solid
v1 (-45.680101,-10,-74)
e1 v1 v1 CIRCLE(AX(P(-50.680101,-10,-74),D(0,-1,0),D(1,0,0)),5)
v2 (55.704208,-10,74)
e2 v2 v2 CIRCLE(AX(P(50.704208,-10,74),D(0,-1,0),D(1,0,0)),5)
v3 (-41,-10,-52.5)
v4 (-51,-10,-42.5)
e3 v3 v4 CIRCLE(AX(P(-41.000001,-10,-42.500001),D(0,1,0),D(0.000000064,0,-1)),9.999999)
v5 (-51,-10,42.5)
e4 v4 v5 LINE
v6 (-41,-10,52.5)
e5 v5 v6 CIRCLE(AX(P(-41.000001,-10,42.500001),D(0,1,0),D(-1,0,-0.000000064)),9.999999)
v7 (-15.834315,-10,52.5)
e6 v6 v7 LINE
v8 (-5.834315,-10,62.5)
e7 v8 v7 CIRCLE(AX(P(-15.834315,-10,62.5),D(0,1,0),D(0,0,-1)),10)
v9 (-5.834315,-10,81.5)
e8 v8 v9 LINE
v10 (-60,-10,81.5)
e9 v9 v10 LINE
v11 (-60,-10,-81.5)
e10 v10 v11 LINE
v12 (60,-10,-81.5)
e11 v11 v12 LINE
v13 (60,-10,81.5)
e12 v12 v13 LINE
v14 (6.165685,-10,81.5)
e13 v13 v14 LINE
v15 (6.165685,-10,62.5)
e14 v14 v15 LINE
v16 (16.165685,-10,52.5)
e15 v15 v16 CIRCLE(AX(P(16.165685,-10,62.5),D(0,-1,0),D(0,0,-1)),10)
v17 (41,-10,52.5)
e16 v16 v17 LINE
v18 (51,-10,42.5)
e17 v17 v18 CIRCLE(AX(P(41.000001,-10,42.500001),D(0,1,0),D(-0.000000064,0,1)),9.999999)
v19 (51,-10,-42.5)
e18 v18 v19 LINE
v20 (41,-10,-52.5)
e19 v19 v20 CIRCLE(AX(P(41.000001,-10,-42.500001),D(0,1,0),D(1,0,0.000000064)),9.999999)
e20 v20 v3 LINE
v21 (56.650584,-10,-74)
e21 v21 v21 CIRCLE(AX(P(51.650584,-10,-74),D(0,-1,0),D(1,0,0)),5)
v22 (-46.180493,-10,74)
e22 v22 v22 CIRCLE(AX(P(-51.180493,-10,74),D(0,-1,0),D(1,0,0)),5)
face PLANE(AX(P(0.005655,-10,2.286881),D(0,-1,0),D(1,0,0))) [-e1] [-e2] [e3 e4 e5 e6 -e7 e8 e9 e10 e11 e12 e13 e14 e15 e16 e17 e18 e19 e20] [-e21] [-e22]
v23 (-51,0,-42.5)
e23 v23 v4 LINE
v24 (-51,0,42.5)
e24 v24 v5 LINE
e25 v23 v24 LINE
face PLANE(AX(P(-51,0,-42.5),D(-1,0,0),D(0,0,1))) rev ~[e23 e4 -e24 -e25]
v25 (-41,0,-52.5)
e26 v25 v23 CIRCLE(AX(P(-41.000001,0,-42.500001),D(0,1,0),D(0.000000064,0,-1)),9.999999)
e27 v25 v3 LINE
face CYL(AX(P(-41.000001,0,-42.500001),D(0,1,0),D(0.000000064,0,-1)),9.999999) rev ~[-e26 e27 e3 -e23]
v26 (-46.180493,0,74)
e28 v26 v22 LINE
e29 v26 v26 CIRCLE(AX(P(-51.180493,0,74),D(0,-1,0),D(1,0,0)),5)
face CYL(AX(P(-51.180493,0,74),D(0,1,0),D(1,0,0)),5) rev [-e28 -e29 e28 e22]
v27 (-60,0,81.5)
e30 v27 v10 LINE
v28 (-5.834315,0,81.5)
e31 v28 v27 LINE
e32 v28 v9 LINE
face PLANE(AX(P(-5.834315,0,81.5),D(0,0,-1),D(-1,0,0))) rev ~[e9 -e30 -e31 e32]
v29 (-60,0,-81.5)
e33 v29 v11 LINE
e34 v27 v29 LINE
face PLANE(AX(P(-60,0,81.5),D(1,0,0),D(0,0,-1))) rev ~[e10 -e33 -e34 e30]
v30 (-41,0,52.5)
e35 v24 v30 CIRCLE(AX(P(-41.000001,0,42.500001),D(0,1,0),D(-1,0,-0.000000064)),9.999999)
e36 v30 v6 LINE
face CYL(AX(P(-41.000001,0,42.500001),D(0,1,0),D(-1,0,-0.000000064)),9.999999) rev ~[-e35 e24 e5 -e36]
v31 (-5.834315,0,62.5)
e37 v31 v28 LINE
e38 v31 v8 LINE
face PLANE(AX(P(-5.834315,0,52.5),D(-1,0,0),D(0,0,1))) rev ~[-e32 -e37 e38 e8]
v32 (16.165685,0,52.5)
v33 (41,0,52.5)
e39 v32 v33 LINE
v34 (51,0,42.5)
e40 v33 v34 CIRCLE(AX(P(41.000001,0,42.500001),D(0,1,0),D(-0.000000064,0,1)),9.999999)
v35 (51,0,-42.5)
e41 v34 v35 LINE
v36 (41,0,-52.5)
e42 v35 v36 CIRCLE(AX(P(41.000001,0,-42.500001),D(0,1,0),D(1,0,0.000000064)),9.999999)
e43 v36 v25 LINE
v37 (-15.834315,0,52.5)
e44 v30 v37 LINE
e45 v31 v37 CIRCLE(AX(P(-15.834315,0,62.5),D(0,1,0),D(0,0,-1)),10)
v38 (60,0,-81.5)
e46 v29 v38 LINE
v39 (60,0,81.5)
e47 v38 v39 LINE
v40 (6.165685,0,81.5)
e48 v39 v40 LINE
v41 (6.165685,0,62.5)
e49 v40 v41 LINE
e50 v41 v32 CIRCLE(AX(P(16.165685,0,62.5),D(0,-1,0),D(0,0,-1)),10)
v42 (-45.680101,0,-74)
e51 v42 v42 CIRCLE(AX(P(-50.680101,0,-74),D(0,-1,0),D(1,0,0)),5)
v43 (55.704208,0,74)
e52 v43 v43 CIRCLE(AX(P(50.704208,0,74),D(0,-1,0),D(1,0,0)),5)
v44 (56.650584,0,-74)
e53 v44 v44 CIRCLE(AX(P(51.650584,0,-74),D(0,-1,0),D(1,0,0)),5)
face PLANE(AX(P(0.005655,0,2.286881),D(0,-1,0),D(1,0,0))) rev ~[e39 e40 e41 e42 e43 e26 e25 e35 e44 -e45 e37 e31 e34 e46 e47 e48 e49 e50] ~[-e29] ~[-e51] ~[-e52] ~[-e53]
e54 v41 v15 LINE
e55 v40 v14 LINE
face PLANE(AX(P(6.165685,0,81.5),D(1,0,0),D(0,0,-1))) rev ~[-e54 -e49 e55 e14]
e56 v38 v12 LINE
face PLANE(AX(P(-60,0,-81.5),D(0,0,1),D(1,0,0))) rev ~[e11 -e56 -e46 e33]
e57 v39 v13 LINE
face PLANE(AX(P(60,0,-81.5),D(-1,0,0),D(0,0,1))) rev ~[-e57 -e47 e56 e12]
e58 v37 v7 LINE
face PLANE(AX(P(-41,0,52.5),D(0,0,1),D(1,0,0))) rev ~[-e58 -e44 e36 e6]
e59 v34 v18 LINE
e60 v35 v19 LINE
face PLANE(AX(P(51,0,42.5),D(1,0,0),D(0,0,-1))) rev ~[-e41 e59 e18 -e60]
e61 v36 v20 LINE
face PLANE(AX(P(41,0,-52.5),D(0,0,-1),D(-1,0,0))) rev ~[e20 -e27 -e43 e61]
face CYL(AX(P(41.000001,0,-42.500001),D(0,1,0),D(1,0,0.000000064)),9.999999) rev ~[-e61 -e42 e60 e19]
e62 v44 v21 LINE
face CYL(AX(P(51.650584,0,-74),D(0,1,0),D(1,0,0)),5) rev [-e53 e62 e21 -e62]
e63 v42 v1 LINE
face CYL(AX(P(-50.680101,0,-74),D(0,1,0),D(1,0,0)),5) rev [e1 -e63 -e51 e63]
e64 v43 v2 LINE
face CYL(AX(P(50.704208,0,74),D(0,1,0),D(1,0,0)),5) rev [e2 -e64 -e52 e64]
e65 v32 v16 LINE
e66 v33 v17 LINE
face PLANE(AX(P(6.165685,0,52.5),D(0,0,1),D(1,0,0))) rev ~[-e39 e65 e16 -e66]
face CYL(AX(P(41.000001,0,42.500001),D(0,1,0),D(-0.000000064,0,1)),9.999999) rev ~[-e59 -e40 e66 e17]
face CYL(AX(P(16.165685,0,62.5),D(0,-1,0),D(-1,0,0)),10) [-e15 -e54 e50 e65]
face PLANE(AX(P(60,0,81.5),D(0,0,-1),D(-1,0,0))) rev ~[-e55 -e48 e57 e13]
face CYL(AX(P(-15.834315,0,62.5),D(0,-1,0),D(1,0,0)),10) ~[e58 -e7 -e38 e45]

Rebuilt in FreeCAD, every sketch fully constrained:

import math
import FreeCAD as App
import Part
import Sketcher
from FreeCAD import Vector


def edges_at(feature, points):
    """Names of the edges that pass closest to the given points."""
    edges = feature.Shape.Edges
    near = lambda p: min(range(len(edges)), key=lambda i: edges[i].distToShape(Part.Vertex(*p))[0])
    return sorted({f"Edge{near(p) + 1}" for p in points})

doc = App.newDocument("Part")
body = doc.addObject("PartDesign::Body", "Body")

sketch1 = doc.addObject("Sketcher::SketchObject", "Sketch")
body.addObject(sketch1)
sketch1.AttachmentSupport = (doc.XZ_Plane, [""])
sketch1.MapMode = "FlatFace"
sketch1.addGeometry([
    Part.LineSegment(Vector(-60, -81.5, 0), Vector(60, -81.5, 0)),
    Part.LineSegment(Vector(60, -81.5, 0), Vector(60, 81.5, 0)),
    Part.LineSegment(Vector(60, 81.5, 0), Vector(6.165685, 81.5, 0)),
    Part.LineSegment(Vector(6.165685, 81.5, 0), Vector(6.165685, 52.5, 0)),
    Part.LineSegment(Vector(6.165685, 52.5, 0), Vector(41, 52.5, 0)),
    Part.ArcOfCircle(Part.Circle(Vector(41.000001, 42.500001, 0), Vector(0, 0, 1), 9.999999), math.radians(-0.000004), math.radians(90.000004)),
    Part.LineSegment(Vector(51, 42.5, 0), Vector(51, -42.5, 0)),
    Part.ArcOfCircle(Part.Circle(Vector(41.000001, -42.500001, 0), Vector(0, 0, 1), 9.999999), math.radians(-90.000004), math.radians(0.000004)),
    Part.LineSegment(Vector(41, -52.5, 0), Vector(-41, -52.5, 0)),
    Part.ArcOfCircle(Part.Circle(Vector(-41.000001, -42.500001, 0), Vector(0, 0, 1), 9.999999), math.radians(179.999996), math.radians(270.000004)),
    Part.LineSegment(Vector(-51, -42.5, 0), Vector(-51, 42.5, 0)),
    Part.ArcOfCircle(Part.Circle(Vector(-41.000001, 42.500001, 0), Vector(0, 0, 1), 9.999999), math.radians(89.999996), math.radians(180.000004)),
    Part.LineSegment(Vector(-41, 52.5, 0), Vector(-5.834315, 52.5, 0)),
    Part.LineSegment(Vector(-5.834315, 52.5, 0), Vector(-5.834315, 81.5, 0)),
    Part.LineSegment(Vector(-5.834315, 81.5, 0), Vector(-60, 81.5, 0)),
    Part.LineSegment(Vector(-60, 81.5, 0), Vector(-60, -81.5, 0)),
    Part.Circle(Vector(-50.680101, -74, 0), Vector(0, 0, 1), 5),
    Part.Circle(Vector(51.650584, -74, 0), Vector(0, 0, 1), 5),
    Part.Circle(Vector(-51.180493, 74, 0), Vector(0, 0, 1), 5),
    Part.Circle(Vector(50.704208, 74, 0), Vector(0, 0, 1), 5),
], False)
sketch1.addConstraint([
    Sketcher.Constraint("Coincident", 0, 2, 1, 1),
    Sketcher.Constraint("Coincident", 1, 2, 2, 1),
    Sketcher.Constraint("Coincident", 2, 2, 3, 1),
    Sketcher.Constraint("Coincident", 3, 2, 4, 1),
    Sketcher.Constraint("Tangent", 4, 2, 5, 2),
    Sketcher.Constraint("Tangent", 5, 1, 6, 1),
    Sketcher.Constraint("Tangent", 6, 2, 7, 2),
    Sketcher.Constraint("Tangent", 7, 1, 8, 1),
    Sketcher.Constraint("Tangent", 8, 2, 9, 2),
    Sketcher.Constraint("Tangent", 9, 1, 10, 1),
    Sketcher.Constraint("Tangent", 10, 2, 11, 2),
    Sketcher.Constraint("Tangent", 11, 1, 12, 1),
    Sketcher.Constraint("Coincident", 12, 2, 13, 1),
    Sketcher.Constraint("Coincident", 13, 2, 14, 1),
    Sketcher.Constraint("Coincident", 14, 2, 15, 1),
    Sketcher.Constraint("Coincident", 15, 2, 0, 1),
    Sketcher.Constraint("Horizontal", 0),
    Sketcher.Constraint("Vertical", 1),
    Sketcher.Constraint("Horizontal", 2),
    Sketcher.Constraint("Vertical", 3),
    Sketcher.Constraint("Horizontal", 4),
    Sketcher.Constraint("Vertical", 6),
    Sketcher.Constraint("Horizontal", 8),
    Sketcher.Constraint("Vertical", 10),
    Sketcher.Constraint("Horizontal", 12),
    Sketcher.Constraint("Vertical", 13),
    Sketcher.Constraint("Horizontal", 14),
    Sketcher.Constraint("Vertical", 15),
    Sketcher.Constraint("Equal", 5, 7),
    Sketcher.Constraint("Equal", 7, 9),
    Sketcher.Constraint("Equal", 9, 11),
    Sketcher.Constraint("Equal", 16, 17),
    Sketcher.Constraint("Equal", 17, 18),
    Sketcher.Constraint("Equal", 18, 19),
    Sketcher.Constraint("Symmetric", 5, 3, 9, 3, -1, 1),
    Sketcher.Constraint("Symmetric", 0, 2, 14, 2, -1, 1),
    Sketcher.Constraint("Horizontal", 5, 3, 11, 3),
    Sketcher.Constraint("Horizontal", 16, 3, 17, 3),
    Sketcher.Constraint("Horizontal", 18, 3, 19, 3),
    Sketcher.Constraint("Horizontal", 2, 2, 13, 2),
    Sketcher.Constraint("Diameter", 16, 10.0),
    Sketcher.Constraint("Radius", 5, 9.999999),
    Sketcher.Constraint("DistanceX", 0, 1, 0, 2, 120.0),
    Sketcher.Constraint("DistanceX", 8, 2, 8, 1, 82.0),
    Sketcher.Constraint("DistanceY", 1, 1, 1, 2, 163.0),
    Sketcher.Constraint("DistanceY", 3, 2, 3, 1, 29.0),
    Sketcher.Constraint("DistanceY", 16, 3, -1, 1, 74.0),
    Sketcher.Constraint("DistanceY", -1, 1, 18, 3, 74.0),
    Sketcher.Constraint("DistanceX", 12, 2, 3, 2, 12.0),
    Sketcher.Constraint("DistanceX", 16, 3, -1, 1, 50.680101),
    Sketcher.Constraint("DistanceX", 18, 3, 19, 3, 101.884701),
    Sketcher.Constraint("DistanceX", 2, 2, 2, 1, 53.834315),
    Sketcher.Constraint("DistanceX", 18, 3, 16, 3, 0.500392),
    Sketcher.Constraint("DistanceX", -1, 1, 17, 3, 51.650584),
])
pad1 = doc.addObject("PartDesign::Pad", "Pad")
body.addObject(pad1)
pad1.Profile = sketch1
pad1.Length = 10
doc.recompute()

fillet = doc.addObject("PartDesign::Fillet", "Fillet")
body.addObject(fillet)
fillet.Base = (pad1, edges_at(pad1, [(-5.834, -5, 52.5)]))
fillet.Radius = 10
doc.recompute()

fillet2 = doc.addObject("PartDesign::Fillet", "Fillet001")
body.addObject(fillet2)
fillet2.Base = (fillet, edges_at(fillet, [(6.166, -5, 52.5)]))
fillet2.Radius = 10

doc.recompute()
